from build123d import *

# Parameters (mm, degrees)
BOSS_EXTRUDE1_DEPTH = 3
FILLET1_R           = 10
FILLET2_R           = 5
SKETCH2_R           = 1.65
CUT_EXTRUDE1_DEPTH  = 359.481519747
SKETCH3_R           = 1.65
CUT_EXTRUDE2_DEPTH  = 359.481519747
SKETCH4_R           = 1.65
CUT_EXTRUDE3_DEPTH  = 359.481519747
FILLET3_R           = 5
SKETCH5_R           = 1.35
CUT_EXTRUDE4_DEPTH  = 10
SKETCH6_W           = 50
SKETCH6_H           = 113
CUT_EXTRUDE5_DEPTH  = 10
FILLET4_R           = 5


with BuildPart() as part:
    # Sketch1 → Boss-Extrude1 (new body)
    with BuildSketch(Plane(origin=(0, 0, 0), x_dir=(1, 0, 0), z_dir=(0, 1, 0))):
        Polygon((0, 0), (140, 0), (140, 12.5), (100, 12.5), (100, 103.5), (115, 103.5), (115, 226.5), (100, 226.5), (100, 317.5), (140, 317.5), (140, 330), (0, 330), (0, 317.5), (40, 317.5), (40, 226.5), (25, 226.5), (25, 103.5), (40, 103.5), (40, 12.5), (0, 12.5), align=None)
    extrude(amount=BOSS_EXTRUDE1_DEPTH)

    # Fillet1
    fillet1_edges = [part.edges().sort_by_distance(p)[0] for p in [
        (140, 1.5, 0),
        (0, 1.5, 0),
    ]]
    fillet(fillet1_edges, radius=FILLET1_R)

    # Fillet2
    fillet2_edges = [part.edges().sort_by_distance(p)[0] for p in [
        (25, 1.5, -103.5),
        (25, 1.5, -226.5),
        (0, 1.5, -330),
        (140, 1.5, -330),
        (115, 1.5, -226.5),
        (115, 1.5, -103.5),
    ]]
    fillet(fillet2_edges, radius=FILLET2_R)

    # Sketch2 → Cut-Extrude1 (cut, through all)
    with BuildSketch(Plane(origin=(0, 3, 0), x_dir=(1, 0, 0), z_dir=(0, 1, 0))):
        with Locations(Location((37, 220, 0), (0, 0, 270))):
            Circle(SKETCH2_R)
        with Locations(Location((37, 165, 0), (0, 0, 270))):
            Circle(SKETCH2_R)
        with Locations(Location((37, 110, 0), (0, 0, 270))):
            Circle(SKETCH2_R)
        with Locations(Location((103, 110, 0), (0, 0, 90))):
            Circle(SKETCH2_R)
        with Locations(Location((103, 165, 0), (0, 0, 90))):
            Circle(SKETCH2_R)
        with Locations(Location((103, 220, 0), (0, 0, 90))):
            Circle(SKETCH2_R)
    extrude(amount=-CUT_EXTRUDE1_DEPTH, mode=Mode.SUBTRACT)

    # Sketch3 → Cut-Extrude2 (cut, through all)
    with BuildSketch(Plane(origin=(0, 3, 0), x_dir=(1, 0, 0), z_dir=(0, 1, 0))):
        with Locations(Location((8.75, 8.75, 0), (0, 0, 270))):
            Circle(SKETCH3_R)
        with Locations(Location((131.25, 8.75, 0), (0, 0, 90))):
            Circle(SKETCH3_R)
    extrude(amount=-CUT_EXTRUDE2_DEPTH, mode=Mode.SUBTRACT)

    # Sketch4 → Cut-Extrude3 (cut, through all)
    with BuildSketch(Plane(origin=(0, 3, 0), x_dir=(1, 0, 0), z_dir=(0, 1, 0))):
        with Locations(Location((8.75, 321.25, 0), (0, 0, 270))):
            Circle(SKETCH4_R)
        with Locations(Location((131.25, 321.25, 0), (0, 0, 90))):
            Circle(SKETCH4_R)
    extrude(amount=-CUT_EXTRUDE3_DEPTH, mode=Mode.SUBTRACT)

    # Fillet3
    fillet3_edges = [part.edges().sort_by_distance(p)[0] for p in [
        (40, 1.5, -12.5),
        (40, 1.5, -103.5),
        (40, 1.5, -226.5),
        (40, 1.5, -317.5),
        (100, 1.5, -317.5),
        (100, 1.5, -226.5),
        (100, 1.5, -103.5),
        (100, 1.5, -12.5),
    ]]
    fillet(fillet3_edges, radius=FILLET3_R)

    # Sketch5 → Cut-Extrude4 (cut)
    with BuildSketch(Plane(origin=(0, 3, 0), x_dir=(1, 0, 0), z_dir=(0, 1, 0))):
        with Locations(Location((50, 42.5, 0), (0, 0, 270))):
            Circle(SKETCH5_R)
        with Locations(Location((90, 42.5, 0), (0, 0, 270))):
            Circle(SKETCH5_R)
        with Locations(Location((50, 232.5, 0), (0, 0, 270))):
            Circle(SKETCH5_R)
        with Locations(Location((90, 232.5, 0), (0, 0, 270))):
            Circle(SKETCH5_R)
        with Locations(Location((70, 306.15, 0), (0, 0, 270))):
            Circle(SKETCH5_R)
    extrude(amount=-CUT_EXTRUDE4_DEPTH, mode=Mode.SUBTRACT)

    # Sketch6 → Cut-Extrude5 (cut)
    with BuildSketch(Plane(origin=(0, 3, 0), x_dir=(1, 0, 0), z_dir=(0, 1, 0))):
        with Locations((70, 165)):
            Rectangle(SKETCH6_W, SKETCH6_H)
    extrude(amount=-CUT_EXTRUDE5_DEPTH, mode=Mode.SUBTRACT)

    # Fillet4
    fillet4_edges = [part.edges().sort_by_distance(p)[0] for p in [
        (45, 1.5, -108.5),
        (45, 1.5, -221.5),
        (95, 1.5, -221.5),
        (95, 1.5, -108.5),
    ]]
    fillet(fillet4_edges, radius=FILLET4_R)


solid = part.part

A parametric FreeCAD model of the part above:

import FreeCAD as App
import Part
import Sketcher
from FreeCAD import Vector
Q = App.Units.Quantity


def edges_at(feature, points):
    """Names of the edges that pass closest to the given points."""
    edges = feature.Shape.Edges
    near = lambda p: min(range(len(edges)), key=lambda i: edges[i].distToShape(Part.Vertex(*p))[0])
    return sorted({f"Edge{near(p) + 1}" for p in points})


def add_polygon(sketch, points):
    """Adds a closed chain of lines whose ends are joined by coincident constraints."""
    first, n = sketch.GeometryCount, len(points)
    for a, b in zip(points, points[1:] + points[:1]):
        sketch.addGeometry(Part.LineSegment(App.Vector(*a, 0), App.Vector(*b, 0)), False)
    for i in range(n):
        sketch.addConstraint(Sketcher.Constraint("Coincident", first + i, 2, first + (i + 1) % n, 1))

doc = App.newDocument("Part")
body = doc.addObject("PartDesign::Body", "Body")

# Sketch on XZ plane
sketch1 = body.newObject("Sketcher::SketchObject", "Sketch")
sketch1.AttachmentSupport = (doc.getObject("XZ_Plane"), [""])
sketch1.MapMode = "FlatFace"
add_polygon(sketch1, [(0, 0), (140, 0), (140, -12), (100, -12), (100, -104), (115, -104), (115, -226), (100, -226), (100, -318), (140, -318), (140, -330), (0, -330), (0, -318), (40, -318), (40, -226), (25, -226), (25, -104), (40, -104), (40, -12), (0, -12)])  # lines 0-19
sketch1.addConstraint(Sketcher.Constraint("Horizontal", 0))
sketch1.addConstraint(Sketcher.Constraint("Vertical", 1))
sketch1.addConstraint(Sketcher.Constraint("Horizontal", 2))
sketch1.addConstraint(Sketcher.Constraint("Vertical", 3))
sketch1.addConstraint(Sketcher.Constraint("Horizontal", 4))
sketch1.addConstraint(Sketcher.Constraint("Vertical", 5))
sketch1.addConstraint(Sketcher.Constraint("Horizontal", 6))
sketch1.addConstraint(Sketcher.Constraint("Vertical", 7))
sketch1.addConstraint(Sketcher.Constraint("Horizontal", 8))
sketch1.addConstraint(Sketcher.Constraint("Vertical", 9))
sketch1.addConstraint(Sketcher.Constraint("Horizontal", 10))
sketch1.addConstraint(Sketcher.Constraint("Vertical", 11))
sketch1.addConstraint(Sketcher.Constraint("Horizontal", 12))
sketch1.addConstraint(Sketcher.Constraint("Vertical", 13))
sketch1.addConstraint(Sketcher.Constraint("Horizontal", 14))
sketch1.addConstraint(Sketcher.Constraint("Vertical", 15))
sketch1.addConstraint(Sketcher.Constraint("Horizontal", 16))
sketch1.addConstraint(Sketcher.Constraint("Vertical", 17))
sketch1.addConstraint(Sketcher.Constraint("Horizontal", 18))
sketch1.addConstraint(Sketcher.Constraint("Vertical", 19))
sketch1.addConstraint(Sketcher.Constraint("Coincident", 19, 2, -1, 1))
sketch1.addConstraint(Sketcher.Constraint("PointOnObject", 10, 2, -2))
sketch1.addConstraint(Sketcher.Constraint("Horizontal", 8, 2, 11, 2))
sketch1.addConstraint(Sketcher.Constraint("Horizontal", 6, 2, 13, 2))
sketch1.addConstraint(Sketcher.Constraint("Horizontal", 4, 2, 15, 2))
sketch1.addConstraint(Sketcher.Constraint("Horizontal", 2, 2, 17, 2))
sketch1.addConstraint(Sketcher.Constraint("Vertical", 3, 2, 6, 2))
sketch1.addConstraint(Sketcher.Constraint("Vertical", 1, 2, 8, 2))
sketch1.addConstraint(Sketcher.Constraint("Vertical", 13, 2, 16, 2))
sketch1.addConstraint(Sketcher.Constraint("Equal", 8, 12))
sketch1.addConstraint(Sketcher.Constraint("Equal", 6, 14))
sketch1.addConstraint(Sketcher.Constraint("Equal", 3, 7))
sketch1.addConstraint(Sketcher.Constraint("Equal", 1, 9))
sketch1.addConstraint(Sketcher.Constraint("DistanceX", 0, 1, 0, 2, Q("140 mm")))
sketch1.addConstraint(Sketcher.Constraint("DistanceX", 2, 2, 2, 1, Q("40 mm")))
sketch1.addConstraint(Sketcher.Constraint("DistanceX", 4, 1, 4, 2, Q("15 mm")))
sketch1.addConstraint(Sketcher.Constraint("DistanceY", 3, 2, 3, 1, Q("91 mm")))
sketch1.addConstraint(Sketcher.Constraint("DistanceY", 5, 2, 5, 1, Q("123 mm")))
sketch1.addConstraint(Sketcher.Constraint("DistanceY", 1, 2, 1, 1, Q("12.5 mm")))
pad1 = body.newObject("PartDesign::Pad", "Pad")
pad1.Profile = sketch1
pad1.Length = 3
pad1.Reversed = True
doc.recompute()

fillet = body.newObject("PartDesign::Fillet", "Fillet")
fillet.Base = (pad1, edges_at(pad1, [(140, 1.5, 0), (0, 1.5, 0)]))
fillet.Radius = 10
doc.recompute()

fillet2 = body.newObject("PartDesign::Fillet", "Fillet001")
fillet2.Base = (fillet, edges_at(fillet, [
    (25, 1.5, -103.5),
    (25, 1.5, -226.5),
    (0, 1.5, -330),
    (140, 1.5, -330),
    (115, 1.5, -226.5),
    (115, 1.5, -103.5),
]))
fillet2.Radius = 5

# Sketch on XZ plane
sketch2 = body.newObject("Sketcher::SketchObject", "Sketch001")
sketch2.AttachmentSupport = (doc.getObject("XZ_Plane"), [""])
sketch2.MapMode = "FlatFace"
sketch2.AttachmentOffset = App.Placement(Vector(0, 0, -3), App.Rotation())
sketch2.addGeometry(Part.Circle(Vector(37, -220, 0), Vector(0, 0, 1), 1.6), False)
sketch2.addGeometry(Part.Circle(Vector(37, -165, 0), Vector(0, 0, 1), 1.6), False)
sketch2.addGeometry(Part.Circle(Vector(37, -110, 0), Vector(0, 0, 1), 1.6), False)
sketch2.addGeometry(Part.Circle(Vector(103, -110, 0), Vector(0, 0, 1), 1.6), False)
sketch2.addGeometry(Part.Circle(Vector(103, -165, 0), Vector(0, 0, 1), 1.6), False)
sketch2.addGeometry(Part.Circle(Vector(103, -220, 0), Vector(0, 0, 1), 1.6), False)
sketch2.addConstraint(Sketcher.Constraint("Equal", 0, 1))
sketch2.addConstraint(Sketcher.Constraint("Equal", 1, 2))
sketch2.addConstraint(Sketcher.Constraint("Equal", 2, 3))
sketch2.addConstraint(Sketcher.Constraint("Equal", 3, 4))
sketch2.addConstraint(Sketcher.Constraint("Equal", 4, 5))
sketch2.addConstraint(Sketcher.Constraint("Horizontal", 2, 3, 3, 3))
sketch2.addConstraint(Sketcher.Constraint("Horizontal", 1, 3, 4, 3))
sketch2.addConstraint(Sketcher.Constraint("Horizontal", 0, 3, 5, 3))
sketch2.addConstraint(Sketcher.Constraint("Vertical", 0, 3, 1, 3))
sketch2.addConstraint(Sketcher.Constraint("Vertical", 1, 3, 2, 3))
sketch2.addConstraint(Sketcher.Constraint("Vertical", 3, 3, 4, 3))
sketch2.addConstraint(Sketcher.Constraint("Vertical", 4, 3, 5, 3))
sketch2.addConstraint(Sketcher.Constraint("Diameter", 0, Q("3.3 mm")))
sketch2.addConstraint(Sketcher.Constraint("DistanceX", -1, 1, 0, 3, Q("37 mm")))
sketch2.addConstraint(Sketcher.Constraint("DistanceY", 0, 3, -1, 1, Q("220 mm")))
sketch2.addConstraint(Sketcher.Constraint("DistanceY", 1, 3, -1, 1, Q("165 mm")))
sketch2.addConstraint(Sketcher.Constraint("DistanceY", 2, 3, -1, 1, Q("110 mm")))
sketch2.addConstraint(Sketcher.Constraint("DistanceX", -1, 1, 3, 3, Q("103 mm")))
pocket1 = body.newObject("PartDesign::Pocket", "Pocket")
pocket1.Profile = sketch2
pocket1.Type = "ThroughAll"
pocket1.Reversed = True

# Sketch on XZ plane
sketch3 = body.newObject("Sketcher::SketchObject", "Sketch002")
sketch3.AttachmentSupport = (doc.getObject("XZ_Plane"), [""])
sketch3.MapMode = "FlatFace"
sketch3.AttachmentOffset = App.Placement(Vector(0, 0, -3), App.Rotation())
sketch3.addGeometry(Part.Circle(Vector(8.8, -8.8, 0), Vector(0, 0, 1), 1.6), False)
sketch3.addGeometry(Part.Circle(Vector(131.2, -8.8, 0), Vector(0, 0, 1), 1.6), False)
sketch3.addConstraint(Sketcher.Constraint("Equal", 0, 1))
sketch3.addConstraint(Sketcher.Constraint("Horizontal", 0, 3, 1, 3))
sketch3.addConstraint(Sketcher.Constraint("Diameter", 0, Q("3.3 mm")))
sketch3.addConstraint(Sketcher.Constraint("DistanceX", 0, 3, 1, 3, Q("122.5 mm")))
sketch3.addConstraint(Sketcher.Constraint("DistanceX", -1, 1, 0, 3, Q("8.75 mm")))
sketch3.addConstraint(Sketcher.Constraint("DistanceY", 0, 3, -1, 1, Q("8.75 mm")))
pocket2 = body.newObject("PartDesign::Pocket", "Pocket001")
pocket2.Profile = sketch3
pocket2.Type = "ThroughAll"
pocket2.Reversed = True

# Sketch on XZ plane
sketch4 = body.newObject("Sketcher::SketchObject", "Sketch003")
sketch4.AttachmentSupport = (doc.getObject("XZ_Plane"), [""])
sketch4.MapMode = "FlatFace"
sketch4.AttachmentOffset = App.Placement(Vector(0, 0, -3), App.Rotation())
sketch4.addGeometry(Part.Circle(Vector(8.8, -321.2, 0), Vector(0, 0, 1), 1.6), False)
sketch4.addGeometry(Part.Circle(Vector(131.2, -321.2, 0), Vector(0, 0, 1), 1.6), False)
sketch4.addConstraint(Sketcher.Constraint("Equal", 0, 1))
sketch4.addConstraint(Sketcher.Constraint("Horizontal", 0, 3, 1, 3))
sketch4.addConstraint(Sketcher.Constraint("Diameter", 0, Q("3.3 mm")))
sketch4.addConstraint(Sketcher.Constraint("DistanceX", 0, 3, 1, 3, Q("122.5 mm")))
sketch4.addConstraint(Sketcher.Constraint("DistanceX", -1, 1, 0, 3, Q("8.75 mm")))
sketch4.addConstraint(Sketcher.Constraint("DistanceY", 0, 3, -1, 1, Q("321.25 mm")))
pocket3 = body.newObject("PartDesign::Pocket", "Pocket002")
pocket3.Profile = sketch4
pocket3.Type = "ThroughAll"
pocket3.Reversed = True
doc.recompute()

fillet3 = body.newObject("PartDesign::Fillet", "Fillet002")
fillet3.Base = (pocket3, edges_at(pocket3, [
    (40, 1.5, -12.5),
    (40, 1.5, -103.5),
    (40, 1.5, -226.5),
    (40, 1.5, -317.5),
    (100, 1.5, -317.5),
    (100, 1.5, -226.5),
    (100, 1.5, -103.5),
    (100, 1.5, -12.5),
]))
fillet3.Radius = 5

# Sketch on XZ plane
sketch5 = body.newObject("Sketcher::SketchObject", "Sketch004")
sketch5.AttachmentSupport = (doc.getObject("XZ_Plane"), [""])
sketch5.MapMode = "FlatFace"
sketch5.AttachmentOffset = App.Placement(Vector(0, 0, -3), App.Rotation())
sketch5.addGeometry(Part.Circle(Vector(50, -42.5, 0), Vector(0, 0, 1), 1.4), False)
sketch5.addGeometry(Part.Circle(Vector(90, -42.5, 0), Vector(0, 0, 1), 1.4), False)
sketch5.addGeometry(Part.Circle(Vector(50, -232.5, 0), Vector(0, 0, 1), 1.4), False)
sketch5.addGeometry(Part.Circle(Vector(90, -232.5, 0), Vector(0, 0, 1), 1.4), False)
sketch5.addGeometry(Part.Circle(Vector(70, -306.1, 0), Vector(0, 0, 1), 1.4), False)
sketch5.addConstraint(Sketcher.Constraint("Equal", 0, 1))
sketch5.addConstraint(Sketcher.Constraint("Equal", 1, 2))
sketch5.addConstraint(Sketcher.Constraint("Equal", 2, 3))
sketch5.addConstraint(Sketcher.Constraint("Equal", 3, 4))
sketch5.addConstraint(Sketcher.Constraint("Horizontal", 0, 3, 1, 3))
sketch5.addConstraint(Sketcher.Constraint("Horizontal", 2, 3, 3, 3))
sketch5.addConstraint(Sketcher.Constraint("Vertical", 0, 3, 2, 3))
sketch5.addConstraint(Sketcher.Constraint("Vertical", 1, 3, 3, 3))
sketch5.addConstraint(Sketcher.Constraint("Diameter", 0, Q("2.7 mm")))
sketch5.addConstraint(Sketcher.Constraint("DistanceX", -1, 1, 0, 3, Q("50 mm")))
sketch5.addConstraint(Sketcher.Constraint("DistanceX", -1, 1, 1, 3, Q("90 mm")))
sketch5.addConstraint(Sketcher.Constraint("DistanceX", -1, 1, 4, 3, Q("70 mm")))
sketch5.addConstraint(Sketcher.Constraint("DistanceY", 2, 3, 0, 3, Q("190 mm")))
sketch5.addConstraint(Sketcher.Constraint("DistanceY", 0, 3, -1, 1, Q("42.5 mm")))
sketch5.addConstraint(Sketcher.Constraint("DistanceY", 4, 3, -1, 1, Q("306.15 mm")))
pocket4 = body.newObject("PartDesign::Pocket", "Pocket003")
pocket4.Profile = sketch5
pocket4.Length = 10
pocket4.Reversed = True

# Sketch on XZ plane
sketch6 = body.newObject("Sketcher::SketchObject", "Sketch005")
sketch6.AttachmentSupport = (doc.getObject("XZ_Plane"), [""])
sketch6.MapMode = "FlatFace"
sketch6.AttachmentOffset = App.Placement(Vector(0, 0, -3), App.Rotation())
add_polygon(sketch6, [(45, -222), (45, -108), (95, -108), (95, -222)])  # lines 0-3
sketch6.addConstraint(Sketcher.Constraint("Vertical", 0))
sketch6.addConstraint(Sketcher.Constraint("Horizontal", 1))
sketch6.addConstraint(Sketcher.Constraint("Vertical", 2))
sketch6.addConstraint(Sketcher.Constraint("Horizontal", 3))
sketch6.addConstraint(Sketcher.Constraint("DistanceX", 1, 1, 1, 2, Q("50 mm")))
sketch6.addConstraint(Sketcher.Constraint("DistanceY", 0, 1, 0, 2, Q("113 mm")))
sketch6.addConstraint(Sketcher.Constraint("DistanceX", -1, 1, 0, 2, Q("45 mm")))
sketch6.addConstraint(Sketcher.Constraint("DistanceY", 0, 2, -1, 1, Q("108.5 mm")))
pocket5 = body.newObject("PartDesign::Pocket", "Pocket004")
pocket5.Profile = sketch6
pocket5.Length = 10
pocket5.Reversed = True
doc.recompute()

fillet4 = body.newObject("PartDesign::Fillet", "Fillet003")
fillet4.Base = (pocket5, edges_at(pocket5, [
    (45, 1.5, -108.5),
    (45, 1.5, -221.5),
    (95, 1.5, -221.5),
    (95, 1.5, -108.5),
]))
fillet4.Radius = 5

doc.recompute()
